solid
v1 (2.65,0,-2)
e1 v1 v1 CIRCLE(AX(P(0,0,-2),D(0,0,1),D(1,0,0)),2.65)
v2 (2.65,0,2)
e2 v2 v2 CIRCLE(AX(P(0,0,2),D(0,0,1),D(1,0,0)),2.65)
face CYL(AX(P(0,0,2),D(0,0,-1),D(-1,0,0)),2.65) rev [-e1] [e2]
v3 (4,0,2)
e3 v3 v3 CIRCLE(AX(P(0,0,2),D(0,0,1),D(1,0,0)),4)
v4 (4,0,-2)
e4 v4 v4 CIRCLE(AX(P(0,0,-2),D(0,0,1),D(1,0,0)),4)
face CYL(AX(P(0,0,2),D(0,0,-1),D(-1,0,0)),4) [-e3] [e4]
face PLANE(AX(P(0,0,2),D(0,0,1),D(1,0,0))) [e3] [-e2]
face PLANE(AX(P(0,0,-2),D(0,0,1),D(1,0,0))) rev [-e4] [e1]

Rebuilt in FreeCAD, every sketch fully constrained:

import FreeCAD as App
import Part
import Sketcher
from FreeCAD import Vector

doc = App.newDocument("Part")
body = doc.addObject("PartDesign::Body", "Body")

# Sketch on XY plane
sketch1 = body.newObject("Sketcher::SketchObject", "Sketch")
sketch1.AttachmentSupport = (doc.getObject("XY_Plane"), [""])
sketch1.MapMode = "FlatFace"
sketch1.addGeometry(Part.Circle(Vector(0, 0, 0), Vector(0, 0, 1), 4), False)
sketch1.addGeometry(Part.Circle(Vector(0, 0, 0), Vector(0, 0, 1), 2.6), False)
sketch1.addConstraint(Sketcher.Constraint("Coincident", 0, 3, -1, 1))
sketch1.addConstraint(Sketcher.Constraint("Coincident", 1, 3, -1, 1))
sketch1.addConstraint(Sketcher.Constraint("Diameter", 0, 8.0))
sketch1.addConstraint(Sketcher.Constraint("Diameter", 1, 5.3))
pad1 = body.newObject("PartDesign::Pad", "Pad")
pad1.Profile = sketch1
pad1.Type = "TwoLengths"
pad1.Length = 2
pad1.Length2 = 2

doc.recompute()
